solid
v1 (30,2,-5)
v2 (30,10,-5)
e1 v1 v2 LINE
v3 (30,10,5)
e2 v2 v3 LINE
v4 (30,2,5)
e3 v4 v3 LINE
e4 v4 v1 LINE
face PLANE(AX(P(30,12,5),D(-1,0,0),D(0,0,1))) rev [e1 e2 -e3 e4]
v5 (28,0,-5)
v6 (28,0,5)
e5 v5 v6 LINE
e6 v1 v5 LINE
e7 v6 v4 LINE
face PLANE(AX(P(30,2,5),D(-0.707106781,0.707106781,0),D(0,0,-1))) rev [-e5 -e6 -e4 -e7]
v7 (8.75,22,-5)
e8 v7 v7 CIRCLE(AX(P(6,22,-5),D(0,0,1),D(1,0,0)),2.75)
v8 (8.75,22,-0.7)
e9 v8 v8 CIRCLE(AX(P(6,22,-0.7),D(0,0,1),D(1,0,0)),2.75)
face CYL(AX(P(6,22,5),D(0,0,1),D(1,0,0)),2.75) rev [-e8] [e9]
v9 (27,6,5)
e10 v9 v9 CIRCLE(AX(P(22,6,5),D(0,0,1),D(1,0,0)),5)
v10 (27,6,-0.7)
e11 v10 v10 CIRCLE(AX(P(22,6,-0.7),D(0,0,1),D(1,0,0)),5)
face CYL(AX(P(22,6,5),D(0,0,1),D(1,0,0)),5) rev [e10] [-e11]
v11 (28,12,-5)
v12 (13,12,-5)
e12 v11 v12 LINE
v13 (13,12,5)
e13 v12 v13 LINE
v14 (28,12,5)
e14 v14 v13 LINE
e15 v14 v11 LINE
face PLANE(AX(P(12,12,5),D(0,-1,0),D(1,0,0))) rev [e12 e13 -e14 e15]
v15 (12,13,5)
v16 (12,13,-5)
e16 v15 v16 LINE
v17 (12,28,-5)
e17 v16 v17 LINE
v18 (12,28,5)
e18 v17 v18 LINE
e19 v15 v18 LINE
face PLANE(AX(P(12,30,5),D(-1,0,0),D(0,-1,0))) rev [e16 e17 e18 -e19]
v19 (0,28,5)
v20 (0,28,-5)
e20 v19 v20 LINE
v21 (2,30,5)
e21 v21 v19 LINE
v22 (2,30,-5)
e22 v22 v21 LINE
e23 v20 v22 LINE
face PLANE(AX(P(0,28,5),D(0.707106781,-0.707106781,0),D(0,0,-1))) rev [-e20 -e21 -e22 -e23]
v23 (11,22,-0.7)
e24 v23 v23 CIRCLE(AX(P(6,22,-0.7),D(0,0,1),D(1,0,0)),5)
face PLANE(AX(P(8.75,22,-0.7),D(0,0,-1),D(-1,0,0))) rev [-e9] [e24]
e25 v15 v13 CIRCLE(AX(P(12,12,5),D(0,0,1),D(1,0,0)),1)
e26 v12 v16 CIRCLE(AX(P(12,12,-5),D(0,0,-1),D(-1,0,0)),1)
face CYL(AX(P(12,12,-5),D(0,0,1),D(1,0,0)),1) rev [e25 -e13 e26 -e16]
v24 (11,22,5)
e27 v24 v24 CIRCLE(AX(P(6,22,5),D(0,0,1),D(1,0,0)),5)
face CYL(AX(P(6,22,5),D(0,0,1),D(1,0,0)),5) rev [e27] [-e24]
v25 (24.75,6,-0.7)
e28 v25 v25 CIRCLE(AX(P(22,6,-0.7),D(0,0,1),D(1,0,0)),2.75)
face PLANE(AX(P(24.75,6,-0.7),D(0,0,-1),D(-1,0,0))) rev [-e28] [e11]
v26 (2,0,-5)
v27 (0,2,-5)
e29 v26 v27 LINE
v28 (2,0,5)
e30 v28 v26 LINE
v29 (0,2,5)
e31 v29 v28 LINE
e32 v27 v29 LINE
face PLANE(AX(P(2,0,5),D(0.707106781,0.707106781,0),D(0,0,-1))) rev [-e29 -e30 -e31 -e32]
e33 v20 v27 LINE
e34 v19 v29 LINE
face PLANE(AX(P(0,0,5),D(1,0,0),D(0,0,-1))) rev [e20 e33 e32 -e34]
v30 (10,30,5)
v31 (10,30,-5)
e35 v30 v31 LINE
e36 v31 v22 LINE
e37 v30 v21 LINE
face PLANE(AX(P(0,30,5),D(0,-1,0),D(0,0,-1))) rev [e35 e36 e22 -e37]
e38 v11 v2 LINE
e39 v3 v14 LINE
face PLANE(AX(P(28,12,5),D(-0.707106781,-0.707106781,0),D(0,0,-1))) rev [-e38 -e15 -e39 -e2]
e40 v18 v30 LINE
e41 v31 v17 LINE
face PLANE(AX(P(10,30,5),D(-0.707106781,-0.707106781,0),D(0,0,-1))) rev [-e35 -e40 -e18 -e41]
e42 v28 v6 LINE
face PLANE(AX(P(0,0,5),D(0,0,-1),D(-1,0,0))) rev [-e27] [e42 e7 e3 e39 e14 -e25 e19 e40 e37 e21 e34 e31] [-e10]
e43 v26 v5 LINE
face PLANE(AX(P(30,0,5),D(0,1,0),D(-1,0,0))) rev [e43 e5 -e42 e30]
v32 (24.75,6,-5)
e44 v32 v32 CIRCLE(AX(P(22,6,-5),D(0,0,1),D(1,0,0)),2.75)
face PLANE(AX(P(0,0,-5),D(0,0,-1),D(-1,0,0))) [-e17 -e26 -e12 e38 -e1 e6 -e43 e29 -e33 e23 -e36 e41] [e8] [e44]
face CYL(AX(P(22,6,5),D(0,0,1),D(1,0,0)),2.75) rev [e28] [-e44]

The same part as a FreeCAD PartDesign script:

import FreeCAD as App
import Part
import Sketcher

V = App.Vector


def edges_at(feature, points):
    """Names of the edges that pass closest to the given points."""
    edges = feature.Shape.Edges
    near = lambda p: min(range(len(edges)), key=lambda i: edges[i].distToShape(Part.Vertex(*p))[0])
    return sorted({f"Edge{near(p) + 1}" for p in points})

doc = App.newDocument("Part")
body = doc.addObject("PartDesign::Body", "Body")

sketch1 = body.newObject("Sketcher::SketchObject", "Sketch")
sketch1.AttachmentSupport = (doc.getObject("XY_Plane"), [""])
sketch1.MapMode = "FlatFace"
sketch1.addGeometry(Part.LineSegment(V(0, 30, 0), V(0, 0, 0)), False)
sketch1.addGeometry(Part.LineSegment(V(0, 0, 0), V(30, 0, 0)), False)
sketch1.addGeometry(Part.LineSegment(V(30, 0, 0), V(30, 12, 0)), False)
sketch1.addGeometry(Part.LineSegment(V(30, 12, 0), V(12, 12, 0)), False)
sketch1.addGeometry(Part.LineSegment(V(12, 12, 0), V(12, 30, 0)), False)
sketch1.addGeometry(Part.LineSegment(V(12, 30, 0), V(0, 30, 0)), False)
sketch1.addConstraint(Sketcher.Constraint("Coincident", 0, 2, 1, 1))
sketch1.addConstraint(Sketcher.Constraint("Coincident", 1, 2, 2, 1))
sketch1.addConstraint(Sketcher.Constraint("Coincident", 2, 2, 3, 1))
sketch1.addConstraint(Sketcher.Constraint("Coincident", 3, 2, 4, 1))
sketch1.addConstraint(Sketcher.Constraint("Coincident", 4, 2, 5, 1))
sketch1.addConstraint(Sketcher.Constraint("Coincident", 5, 2, 0, 1))
sketch1.addConstraint(Sketcher.Constraint("Vertical", 0))
sketch1.addConstraint(Sketcher.Constraint("Horizontal", 1))
sketch1.addConstraint(Sketcher.Constraint("Vertical", 2))
sketch1.addConstraint(Sketcher.Constraint("Horizontal", 3))
sketch1.addConstraint(Sketcher.Constraint("Vertical", 4))
sketch1.addConstraint(Sketcher.Constraint("Horizontal", 5))
sketch1.addConstraint(Sketcher.Constraint("Coincident", 0, 2, -1, 1))
sketch1.addConstraint(Sketcher.Constraint("Equal", 1, 0))
sketch1.addConstraint(Sketcher.Constraint("Equal", 5, 2))
sketch1.addConstraint(Sketcher.Constraint("DistanceX", 1, 1, 1, 2, 30.0))
sketch1.addConstraint(Sketcher.Constraint("DistanceX", 3, 2, 3, 1, 18.0))
pad1 = body.newObject("PartDesign::Pad", "Pad")
pad1.Profile = sketch1
pad1.Length = 10
pad1.Midplane = True

sketch2 = body.newObject("Sketcher::SketchObject", "Sketch001")
sketch2.AttachmentSupport = (doc.getObject("XY_Plane"), [""])
sketch2.MapMode = "FlatFace"
sketch2.AttachmentOffset = App.Placement(V(0, 0, 5), App.Rotation())
sketch2.addGeometry(Part.Circle(V(6, 22, 0), V(0, 0, 1), 2.8), False)
sketch2.addGeometry(Part.Circle(V(22, 6, 0), V(0, 0, 1), 2.8), False)
sketch2.addConstraint(Sketcher.Constraint("Equal", 0, 1))
sketch2.addConstraint(Sketcher.Constraint("Diameter", 0, 5.5))
sketch2.addConstraint(Sketcher.Constraint("DistanceX", -1, 1, 0, 3, 6.0))
sketch2.addConstraint(Sketcher.Constraint("DistanceY", -1, 1, 0, 3, 22.0))
sketch2.addConstraint(Sketcher.Constraint("DistanceX", -1, 1, 1, 3, 22.0))
sketch2.addConstraint(Sketcher.Constraint("DistanceY", -1, 1, 1, 3, 6.0))
doc.recompute()
hole = body.newObject("PartDesign::Hole", "Hole")
hole.Profile = sketch2
hole.ThreadType = "None"
hole.Diameter = 5.5
hole.DepthType = "ThroughAll"
hole.HoleCutType = "Counterbore"
hole.HoleCutDiameter = 10
hole.HoleCutDepth = 5.7
doc.recompute()

chamfer = body.newObject("PartDesign::Chamfer", "Chamfer")
chamfer.Base = (hole, edges_at(hole, [
    (0, 0, 0),
    (0, 30, 0),
    (12, 30, 0),
    (30, 12, 0),
    (30, 0, 0),
]))
chamfer.Size = 2

sketch3 = body.newObject("Sketcher::SketchObject", "Sketch002")
sketch3.AttachmentSupport = (doc.getObject("XY_Plane"), [""])
sketch3.MapMode = "FlatFace"
sketch3.AttachmentOffset = App.Placement(V(0, 0, 5), App.Rotation())
sketch3.addGeometry(Part.Circle(V(12, 12, 0), V(0, 0, 1), 1), False)
sketch3.addConstraint(Sketcher.Constraint("Diameter", 0, 2.0))
sketch3.addConstraint(Sketcher.Constraint("DistanceX", -1, 1, 0, 3, 12.0))
sketch3.addConstraint(Sketcher.Constraint("DistanceY", -1, 1, 0, 3, 12.0))
pocket1 = body.newObject("PartDesign::Pocket", "Pocket")
pocket1.Profile = sketch3
pocket1.Type = "ThroughAll"

doc.recompute()
